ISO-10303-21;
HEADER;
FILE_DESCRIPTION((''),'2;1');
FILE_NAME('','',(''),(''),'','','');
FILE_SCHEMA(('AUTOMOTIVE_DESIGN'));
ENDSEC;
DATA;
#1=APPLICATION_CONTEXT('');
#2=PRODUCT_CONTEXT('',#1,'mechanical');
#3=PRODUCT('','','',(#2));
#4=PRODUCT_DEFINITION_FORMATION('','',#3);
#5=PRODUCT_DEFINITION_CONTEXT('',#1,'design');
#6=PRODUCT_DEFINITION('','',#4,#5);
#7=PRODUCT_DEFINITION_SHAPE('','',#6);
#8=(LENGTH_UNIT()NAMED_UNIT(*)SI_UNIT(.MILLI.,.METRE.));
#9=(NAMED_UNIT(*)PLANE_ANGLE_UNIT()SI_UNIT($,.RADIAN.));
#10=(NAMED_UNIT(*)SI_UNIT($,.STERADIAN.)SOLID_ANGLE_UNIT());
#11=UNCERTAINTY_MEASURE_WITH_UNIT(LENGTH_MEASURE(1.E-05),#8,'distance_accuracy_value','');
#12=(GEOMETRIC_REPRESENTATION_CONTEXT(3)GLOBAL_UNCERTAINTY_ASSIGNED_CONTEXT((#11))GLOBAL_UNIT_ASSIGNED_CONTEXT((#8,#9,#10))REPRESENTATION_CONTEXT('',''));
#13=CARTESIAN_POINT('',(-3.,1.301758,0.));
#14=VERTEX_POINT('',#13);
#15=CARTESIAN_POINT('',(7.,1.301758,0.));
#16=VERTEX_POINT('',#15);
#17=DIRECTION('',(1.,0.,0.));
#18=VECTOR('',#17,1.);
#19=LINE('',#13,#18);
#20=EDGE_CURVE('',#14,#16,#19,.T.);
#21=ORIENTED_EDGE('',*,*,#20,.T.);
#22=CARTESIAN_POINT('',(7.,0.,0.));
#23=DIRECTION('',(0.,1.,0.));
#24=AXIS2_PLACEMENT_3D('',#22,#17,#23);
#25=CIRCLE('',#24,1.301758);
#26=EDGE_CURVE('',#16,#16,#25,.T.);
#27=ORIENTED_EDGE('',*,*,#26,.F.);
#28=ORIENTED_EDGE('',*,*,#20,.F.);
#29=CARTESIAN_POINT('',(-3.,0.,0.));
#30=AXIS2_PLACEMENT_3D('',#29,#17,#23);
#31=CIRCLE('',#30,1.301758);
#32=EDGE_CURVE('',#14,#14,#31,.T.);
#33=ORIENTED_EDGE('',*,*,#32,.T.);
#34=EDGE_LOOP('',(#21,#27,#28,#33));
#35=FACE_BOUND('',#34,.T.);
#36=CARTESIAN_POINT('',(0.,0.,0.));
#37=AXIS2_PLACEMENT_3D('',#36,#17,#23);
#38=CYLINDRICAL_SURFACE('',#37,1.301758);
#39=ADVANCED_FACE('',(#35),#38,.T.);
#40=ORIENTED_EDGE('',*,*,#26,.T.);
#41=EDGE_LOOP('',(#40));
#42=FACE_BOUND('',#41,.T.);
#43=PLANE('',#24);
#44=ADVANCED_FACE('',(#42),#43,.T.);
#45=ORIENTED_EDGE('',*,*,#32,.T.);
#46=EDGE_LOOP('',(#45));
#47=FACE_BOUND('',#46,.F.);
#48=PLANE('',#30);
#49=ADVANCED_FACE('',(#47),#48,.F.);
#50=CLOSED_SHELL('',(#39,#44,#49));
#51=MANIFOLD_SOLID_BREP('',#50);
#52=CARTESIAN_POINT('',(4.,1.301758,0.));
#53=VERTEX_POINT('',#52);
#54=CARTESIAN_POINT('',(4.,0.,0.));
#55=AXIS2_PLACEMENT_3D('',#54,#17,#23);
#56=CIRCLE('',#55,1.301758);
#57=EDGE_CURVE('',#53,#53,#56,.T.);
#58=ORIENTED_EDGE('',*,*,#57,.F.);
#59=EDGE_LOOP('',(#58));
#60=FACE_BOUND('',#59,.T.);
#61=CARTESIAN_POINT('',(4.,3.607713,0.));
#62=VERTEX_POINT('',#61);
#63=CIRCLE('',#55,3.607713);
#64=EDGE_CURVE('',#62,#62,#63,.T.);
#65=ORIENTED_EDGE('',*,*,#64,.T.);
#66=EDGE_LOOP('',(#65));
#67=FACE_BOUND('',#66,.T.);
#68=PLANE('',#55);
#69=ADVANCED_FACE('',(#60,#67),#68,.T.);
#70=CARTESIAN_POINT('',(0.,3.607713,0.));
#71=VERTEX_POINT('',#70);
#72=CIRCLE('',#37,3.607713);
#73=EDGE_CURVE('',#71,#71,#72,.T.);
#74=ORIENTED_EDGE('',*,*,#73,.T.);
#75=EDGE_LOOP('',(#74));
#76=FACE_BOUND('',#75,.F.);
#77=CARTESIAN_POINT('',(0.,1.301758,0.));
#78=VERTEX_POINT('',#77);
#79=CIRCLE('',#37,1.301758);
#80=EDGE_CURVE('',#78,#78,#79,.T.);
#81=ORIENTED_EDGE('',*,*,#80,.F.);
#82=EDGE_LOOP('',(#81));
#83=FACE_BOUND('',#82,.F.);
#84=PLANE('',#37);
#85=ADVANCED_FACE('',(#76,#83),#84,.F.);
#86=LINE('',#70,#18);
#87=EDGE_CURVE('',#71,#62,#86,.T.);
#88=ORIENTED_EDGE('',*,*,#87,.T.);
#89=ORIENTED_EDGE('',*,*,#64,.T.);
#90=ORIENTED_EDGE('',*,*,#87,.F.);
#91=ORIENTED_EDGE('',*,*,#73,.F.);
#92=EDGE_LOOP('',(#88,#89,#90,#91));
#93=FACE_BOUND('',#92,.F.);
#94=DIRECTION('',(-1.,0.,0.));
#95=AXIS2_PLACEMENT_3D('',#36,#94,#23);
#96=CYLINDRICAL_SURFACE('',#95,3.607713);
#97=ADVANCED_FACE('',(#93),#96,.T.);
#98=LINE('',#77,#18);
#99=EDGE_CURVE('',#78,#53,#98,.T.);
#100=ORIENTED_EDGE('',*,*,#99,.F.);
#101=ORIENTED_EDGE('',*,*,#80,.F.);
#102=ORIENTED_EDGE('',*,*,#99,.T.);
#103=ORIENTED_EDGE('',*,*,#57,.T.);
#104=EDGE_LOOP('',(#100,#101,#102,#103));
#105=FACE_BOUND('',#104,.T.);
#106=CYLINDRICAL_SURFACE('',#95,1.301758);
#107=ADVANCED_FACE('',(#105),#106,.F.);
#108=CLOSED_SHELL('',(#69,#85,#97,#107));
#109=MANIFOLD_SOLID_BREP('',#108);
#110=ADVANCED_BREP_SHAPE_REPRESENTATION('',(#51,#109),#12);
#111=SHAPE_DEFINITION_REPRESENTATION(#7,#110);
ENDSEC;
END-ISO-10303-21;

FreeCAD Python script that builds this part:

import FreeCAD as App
import Part
import Sketcher
from FreeCAD import Vector
Q = App.Units.Quantity

doc = App.newDocument("Part")
body = doc.addObject("PartDesign::Body", "Body")

# Sketch on YZ plane
sketch1 = body.newObject("Sketcher::SketchObject", "Sketch")
sketch1.AttachmentSupport = (doc.getObject("YZ_Plane"), [""])
sketch1.MapMode = "FlatFace"
sketch1.addGeometry([
    Part.Circle(Vector(0, 0, 0), Vector(0, 0, 1), 3.6),
    Part.Circle(Vector(0, 0, 0), Vector(0, 0, 1), 1.3),
], False)
sketch1.addConstraint([
    Sketcher.Constraint("Coincident", 0, 3, -1, 1),
    Sketcher.Constraint("Coincident", 1, 3, -1, 1),
    Sketcher.Constraint("Diameter", 0, Q("7.215426 mm")),
    Sketcher.Constraint("Diameter", 1, Q("2.603516 mm")),
])
pad1 = body.newObject("PartDesign::Pad", "Pad")
pad1.Profile = sketch1
pad1.Length = 4
body2 = doc.addObject("PartDesign::Body", "Body001")

# Sketch on YZ plane
sketch2 = body2.newObject("Sketcher::SketchObject", "Sketch001")
sketch2.AttachmentSupport = (doc.getObject("YZ_Plane001"), [""])
sketch2.MapMode = "FlatFace"
sketch2.addGeometry(Part.Circle(Vector(0, 0, 0), Vector(0, 0, 1), 1.3), False)
sketch2.addConstraint([
    Sketcher.Constraint("Coincident", 0, 3, -1, 1),
    Sketcher.Constraint("Diameter", 0, Q("2.603516 mm")),
])
pad2 = body2.newObject("PartDesign::Pad", "Pad001")
pad2.Profile = sketch2
pad2.Type = "TwoLengths"
pad2.Length = 7
pad2.Length2 = 3

doc.recompute()
